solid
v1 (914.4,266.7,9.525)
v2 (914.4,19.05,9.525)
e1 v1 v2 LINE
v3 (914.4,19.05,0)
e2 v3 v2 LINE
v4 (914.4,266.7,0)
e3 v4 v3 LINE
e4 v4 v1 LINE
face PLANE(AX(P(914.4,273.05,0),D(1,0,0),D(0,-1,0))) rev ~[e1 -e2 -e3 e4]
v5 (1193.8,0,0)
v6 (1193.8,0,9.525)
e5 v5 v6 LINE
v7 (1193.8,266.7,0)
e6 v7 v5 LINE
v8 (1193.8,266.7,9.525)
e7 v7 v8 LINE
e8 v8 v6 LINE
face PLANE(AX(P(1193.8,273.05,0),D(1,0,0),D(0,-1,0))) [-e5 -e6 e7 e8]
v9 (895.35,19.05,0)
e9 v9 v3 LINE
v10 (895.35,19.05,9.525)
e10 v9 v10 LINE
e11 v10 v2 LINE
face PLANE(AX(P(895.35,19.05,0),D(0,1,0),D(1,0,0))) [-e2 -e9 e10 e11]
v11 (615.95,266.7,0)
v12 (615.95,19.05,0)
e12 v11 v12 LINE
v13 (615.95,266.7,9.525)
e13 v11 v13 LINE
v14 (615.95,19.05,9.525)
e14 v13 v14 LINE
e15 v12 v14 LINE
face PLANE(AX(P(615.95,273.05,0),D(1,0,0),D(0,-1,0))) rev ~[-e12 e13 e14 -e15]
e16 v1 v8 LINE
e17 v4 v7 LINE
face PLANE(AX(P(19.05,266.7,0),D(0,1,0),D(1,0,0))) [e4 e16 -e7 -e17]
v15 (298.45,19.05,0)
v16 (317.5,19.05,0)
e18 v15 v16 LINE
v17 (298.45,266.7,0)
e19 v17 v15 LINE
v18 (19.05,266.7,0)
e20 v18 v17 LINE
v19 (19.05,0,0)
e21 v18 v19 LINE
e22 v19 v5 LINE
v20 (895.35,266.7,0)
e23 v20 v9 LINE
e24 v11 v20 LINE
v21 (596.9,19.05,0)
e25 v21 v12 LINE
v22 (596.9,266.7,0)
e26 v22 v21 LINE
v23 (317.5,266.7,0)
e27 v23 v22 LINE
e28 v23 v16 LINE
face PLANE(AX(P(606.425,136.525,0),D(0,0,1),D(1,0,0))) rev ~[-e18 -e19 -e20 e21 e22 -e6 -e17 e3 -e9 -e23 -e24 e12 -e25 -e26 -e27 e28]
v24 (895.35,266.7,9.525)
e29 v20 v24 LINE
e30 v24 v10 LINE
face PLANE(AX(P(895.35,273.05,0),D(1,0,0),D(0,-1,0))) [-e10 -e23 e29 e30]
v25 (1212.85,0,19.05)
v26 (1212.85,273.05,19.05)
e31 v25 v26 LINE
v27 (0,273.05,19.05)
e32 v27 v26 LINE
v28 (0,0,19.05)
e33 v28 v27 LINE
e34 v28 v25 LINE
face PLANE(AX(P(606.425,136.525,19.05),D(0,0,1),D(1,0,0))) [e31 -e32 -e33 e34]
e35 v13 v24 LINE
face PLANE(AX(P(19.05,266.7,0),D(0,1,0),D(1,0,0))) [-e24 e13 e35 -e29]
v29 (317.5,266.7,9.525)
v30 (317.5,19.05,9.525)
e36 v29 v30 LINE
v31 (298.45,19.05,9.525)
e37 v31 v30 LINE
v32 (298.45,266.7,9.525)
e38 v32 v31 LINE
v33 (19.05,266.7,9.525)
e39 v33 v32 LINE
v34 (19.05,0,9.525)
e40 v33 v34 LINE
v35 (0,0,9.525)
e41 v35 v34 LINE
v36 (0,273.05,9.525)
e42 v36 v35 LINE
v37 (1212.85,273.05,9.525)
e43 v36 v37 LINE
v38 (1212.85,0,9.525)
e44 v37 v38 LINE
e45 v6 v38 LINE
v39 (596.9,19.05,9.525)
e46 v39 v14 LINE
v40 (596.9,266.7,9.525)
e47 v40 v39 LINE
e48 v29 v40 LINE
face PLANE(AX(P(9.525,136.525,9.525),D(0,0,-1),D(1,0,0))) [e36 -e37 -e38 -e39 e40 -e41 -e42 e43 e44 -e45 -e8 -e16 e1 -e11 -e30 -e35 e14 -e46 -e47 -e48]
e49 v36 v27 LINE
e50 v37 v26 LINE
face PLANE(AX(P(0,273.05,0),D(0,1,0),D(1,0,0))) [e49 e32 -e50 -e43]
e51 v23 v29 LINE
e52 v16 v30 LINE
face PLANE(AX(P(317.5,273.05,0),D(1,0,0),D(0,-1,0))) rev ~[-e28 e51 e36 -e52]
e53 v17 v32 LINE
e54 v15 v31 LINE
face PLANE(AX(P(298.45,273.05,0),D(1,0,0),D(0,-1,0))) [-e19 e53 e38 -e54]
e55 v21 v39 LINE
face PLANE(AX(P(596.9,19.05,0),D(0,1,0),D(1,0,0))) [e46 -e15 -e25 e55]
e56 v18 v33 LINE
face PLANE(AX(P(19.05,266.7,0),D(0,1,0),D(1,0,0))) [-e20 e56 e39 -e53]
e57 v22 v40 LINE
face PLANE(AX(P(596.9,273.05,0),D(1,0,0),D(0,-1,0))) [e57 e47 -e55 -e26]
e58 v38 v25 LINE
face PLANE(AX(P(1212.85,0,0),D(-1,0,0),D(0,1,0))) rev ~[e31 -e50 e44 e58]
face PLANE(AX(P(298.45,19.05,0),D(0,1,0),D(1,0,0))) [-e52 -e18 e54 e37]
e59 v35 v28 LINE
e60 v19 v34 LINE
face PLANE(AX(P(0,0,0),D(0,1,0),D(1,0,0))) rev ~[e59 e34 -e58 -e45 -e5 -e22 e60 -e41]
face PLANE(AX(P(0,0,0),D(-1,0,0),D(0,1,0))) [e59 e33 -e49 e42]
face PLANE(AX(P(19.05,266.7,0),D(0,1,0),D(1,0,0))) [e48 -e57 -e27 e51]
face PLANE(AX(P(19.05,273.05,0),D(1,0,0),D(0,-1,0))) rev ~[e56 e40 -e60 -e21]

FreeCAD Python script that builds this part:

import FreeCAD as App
import Part
import Sketcher
Q = App.Units.Quantity


def add_polygon(sketch, points):
    """Adds a closed chain of lines whose ends are joined by coincident constraints."""
    first, n = sketch.GeometryCount, len(points)
    for a, b in zip(points, points[1:] + points[:1]):
        sketch.addGeometry(Part.LineSegment(App.Vector(*a, 0), App.Vector(*b, 0)), False)
    for i in range(n):
        sketch.addConstraint(Sketcher.Constraint("Coincident", first + i, 2, first + (i + 1) % n, 1))

doc = App.newDocument("Part")
body = doc.addObject("PartDesign::Body", "Body")

# Sketch on XY plane
sketch1 = body.newObject("Sketcher::SketchObject", "Sketch")
sketch1.AttachmentSupport = (doc.getObject("XY_Plane"), [""])
sketch1.MapMode = "FlatFace"
add_polygon(sketch1, [(0, 273), (0, 0), (1213, 0), (1213, 273)])  # lines 0-3
sketch1.addConstraint(Sketcher.Constraint("Vertical", 0))
sketch1.addConstraint(Sketcher.Constraint("Horizontal", 1))
sketch1.addConstraint(Sketcher.Constraint("Vertical", 2))
sketch1.addConstraint(Sketcher.Constraint("Horizontal", 3))
sketch1.addConstraint(Sketcher.Constraint("Coincident", 0, 2, -1, 1))
sketch1.addConstraint(Sketcher.Constraint("DistanceX", 1, 1, 1, 2, Q("47.75 in")))
sketch1.addConstraint(Sketcher.Constraint("DistanceY", 0, 2, 0, 1, Q("10.75 in")))
pad1 = body.newObject("PartDesign::Pad", "Pad")
pad1.Profile = sketch1
pad1.Length = Q("0.75 in")

# Sketch on XY plane
sketch2 = body.newObject("Sketcher::SketchObject", "Sketch001")
sketch2.AttachmentSupport = (doc.getObject("XY_Plane"), [""])
sketch2.MapMode = "FlatFace"
add_polygon(sketch2, [(0, 0), (0, 273), (19, 273), (19, 0)])  # lines 0-3
add_polygon(sketch2, [(298, 19), (298, 273), (318, 273), (318, 19)])  # lines 4-7
add_polygon(sketch2, [(597, 19), (597, 273), (616, 273), (616, 19)])  # lines 8-11
add_polygon(sketch2, [(895, 19), (895, 273), (914, 273), (914, 19)])  # lines 12-15
add_polygon(sketch2, [(1194, 0), (1194, 273), (1213, 273), (1213, 0)])  # lines 16-19
sketch2.addConstraint(Sketcher.Constraint("Vertical", 0))
sketch2.addConstraint(Sketcher.Constraint("Horizontal", 1))
sketch2.addConstraint(Sketcher.Constraint("Vertical", 2))
sketch2.addConstraint(Sketcher.Constraint("Horizontal", 3))
sketch2.addConstraint(Sketcher.Constraint("Vertical", 4))
sketch2.addConstraint(Sketcher.Constraint("Horizontal", 5))
sketch2.addConstraint(Sketcher.Constraint("Vertical", 6))
sketch2.addConstraint(Sketcher.Constraint("Horizontal", 7))
sketch2.addConstraint(Sketcher.Constraint("Vertical", 8))
sketch2.addConstraint(Sketcher.Constraint("Horizontal", 9))
sketch2.addConstraint(Sketcher.Constraint("Vertical", 10))
sketch2.addConstraint(Sketcher.Constraint("Horizontal", 11))
sketch2.addConstraint(Sketcher.Constraint("Vertical", 12))
sketch2.addConstraint(Sketcher.Constraint("Horizontal", 13))
sketch2.addConstraint(Sketcher.Constraint("Vertical", 14))
sketch2.addConstraint(Sketcher.Constraint("Horizontal", 15))
sketch2.addConstraint(Sketcher.Constraint("Vertical", 16))
sketch2.addConstraint(Sketcher.Constraint("Horizontal", 17))
sketch2.addConstraint(Sketcher.Constraint("Vertical", 18))
sketch2.addConstraint(Sketcher.Constraint("Horizontal", 19))
sketch2.addConstraint(Sketcher.Constraint("Coincident", 3, 2, -1, 1))
sketch2.addConstraint(Sketcher.Constraint("PointOnObject", 18, 2, -1))
sketch2.addConstraint(Sketcher.Constraint("Horizontal", 1, 2, 4, 2))
sketch2.addConstraint(Sketcher.Constraint("Horizontal", 5, 2, 8, 2))
sketch2.addConstraint(Sketcher.Constraint("Horizontal", 7, 2, 10, 2))
sketch2.addConstraint(Sketcher.Constraint("Horizontal", 9, 2, 12, 2))
sketch2.addConstraint(Sketcher.Constraint("Horizontal", 11, 2, 14, 2))
sketch2.addConstraint(Sketcher.Constraint("Horizontal", 13, 2, 16, 2))
sketch2.addConstraint(Sketcher.Constraint("Equal", 3, 5))
sketch2.addConstraint(Sketcher.Constraint("Equal", 7, 9))
sketch2.addConstraint(Sketcher.Constraint("Equal", 11, 13))
sketch2.addConstraint(Sketcher.Constraint("Equal", 15, 17))
sketch2.addConstraint(Sketcher.Constraint("DistanceY", 4, 1, 4, 2, Q("10 in")))
sketch2.addConstraint(Sketcher.Constraint("DistanceX", -1, 1, 13, 2, Q("36 in")))
sketch2.addConstraint(Sketcher.Constraint("DistanceX", -1, 1, 16, 2, Q("47 in")))
sketch2.addConstraint(Sketcher.Constraint("DistanceX", 1, 2, 4, 2, Q("11 in")))
sketch2.addConstraint(Sketcher.Constraint("DistanceX", 5, 2, 8, 2, Q("11 in")))
sketch2.addConstraint(Sketcher.Constraint("DistanceX", 9, 2, 12, 2, Q("11 in")))
sketch2.addConstraint(Sketcher.Constraint("DistanceY", 0, 1, 0, 2, Q("10.75 in")))
pocket1 = body.newObject("PartDesign::Pocket", "Pocket")
pocket1.Profile = sketch2
pocket1.Length = Q("0.375 in")
pocket1.Reversed = True

# Sketch on XY plane
sketch3 = body.newObject("Sketcher::SketchObject", "Sketch002")
sketch3.AttachmentSupport = (doc.getObject("XY_Plane"), [""])
sketch3.MapMode = "FlatFace"
add_polygon(sketch3, [(19, 267), (19, 273), (1194, 273), (1194, 267)])  # lines 0-3
sketch3.addConstraint(Sketcher.Constraint("Vertical", 0))
sketch3.addConstraint(Sketcher.Constraint("Horizontal", 1))
sketch3.addConstraint(Sketcher.Constraint("Vertical", 2))
sketch3.addConstraint(Sketcher.Constraint("Horizontal", 3))
sketch3.addConstraint(Sketcher.Constraint("DistanceX", -1, 1, 1, 2, Q("47 in")))
sketch3.addConstraint(Sketcher.Constraint("DistanceX", 1, 1, 1, 2, Q("46.25 in")))
sketch3.addConstraint(Sketcher.Constraint("DistanceY", 0, 1, 0, 2, Q("0.25 in")))
sketch3.addConstraint(Sketcher.Constraint("DistanceY", -1, 1, 2, 2, Q("10.5 in")))
pocket2 = body.newObject("PartDesign::Pocket", "Pocket001")
pocket2.Profile = sketch3
pocket2.Length = Q("0.375 in")
pocket2.Reversed = True

doc.recompute()
